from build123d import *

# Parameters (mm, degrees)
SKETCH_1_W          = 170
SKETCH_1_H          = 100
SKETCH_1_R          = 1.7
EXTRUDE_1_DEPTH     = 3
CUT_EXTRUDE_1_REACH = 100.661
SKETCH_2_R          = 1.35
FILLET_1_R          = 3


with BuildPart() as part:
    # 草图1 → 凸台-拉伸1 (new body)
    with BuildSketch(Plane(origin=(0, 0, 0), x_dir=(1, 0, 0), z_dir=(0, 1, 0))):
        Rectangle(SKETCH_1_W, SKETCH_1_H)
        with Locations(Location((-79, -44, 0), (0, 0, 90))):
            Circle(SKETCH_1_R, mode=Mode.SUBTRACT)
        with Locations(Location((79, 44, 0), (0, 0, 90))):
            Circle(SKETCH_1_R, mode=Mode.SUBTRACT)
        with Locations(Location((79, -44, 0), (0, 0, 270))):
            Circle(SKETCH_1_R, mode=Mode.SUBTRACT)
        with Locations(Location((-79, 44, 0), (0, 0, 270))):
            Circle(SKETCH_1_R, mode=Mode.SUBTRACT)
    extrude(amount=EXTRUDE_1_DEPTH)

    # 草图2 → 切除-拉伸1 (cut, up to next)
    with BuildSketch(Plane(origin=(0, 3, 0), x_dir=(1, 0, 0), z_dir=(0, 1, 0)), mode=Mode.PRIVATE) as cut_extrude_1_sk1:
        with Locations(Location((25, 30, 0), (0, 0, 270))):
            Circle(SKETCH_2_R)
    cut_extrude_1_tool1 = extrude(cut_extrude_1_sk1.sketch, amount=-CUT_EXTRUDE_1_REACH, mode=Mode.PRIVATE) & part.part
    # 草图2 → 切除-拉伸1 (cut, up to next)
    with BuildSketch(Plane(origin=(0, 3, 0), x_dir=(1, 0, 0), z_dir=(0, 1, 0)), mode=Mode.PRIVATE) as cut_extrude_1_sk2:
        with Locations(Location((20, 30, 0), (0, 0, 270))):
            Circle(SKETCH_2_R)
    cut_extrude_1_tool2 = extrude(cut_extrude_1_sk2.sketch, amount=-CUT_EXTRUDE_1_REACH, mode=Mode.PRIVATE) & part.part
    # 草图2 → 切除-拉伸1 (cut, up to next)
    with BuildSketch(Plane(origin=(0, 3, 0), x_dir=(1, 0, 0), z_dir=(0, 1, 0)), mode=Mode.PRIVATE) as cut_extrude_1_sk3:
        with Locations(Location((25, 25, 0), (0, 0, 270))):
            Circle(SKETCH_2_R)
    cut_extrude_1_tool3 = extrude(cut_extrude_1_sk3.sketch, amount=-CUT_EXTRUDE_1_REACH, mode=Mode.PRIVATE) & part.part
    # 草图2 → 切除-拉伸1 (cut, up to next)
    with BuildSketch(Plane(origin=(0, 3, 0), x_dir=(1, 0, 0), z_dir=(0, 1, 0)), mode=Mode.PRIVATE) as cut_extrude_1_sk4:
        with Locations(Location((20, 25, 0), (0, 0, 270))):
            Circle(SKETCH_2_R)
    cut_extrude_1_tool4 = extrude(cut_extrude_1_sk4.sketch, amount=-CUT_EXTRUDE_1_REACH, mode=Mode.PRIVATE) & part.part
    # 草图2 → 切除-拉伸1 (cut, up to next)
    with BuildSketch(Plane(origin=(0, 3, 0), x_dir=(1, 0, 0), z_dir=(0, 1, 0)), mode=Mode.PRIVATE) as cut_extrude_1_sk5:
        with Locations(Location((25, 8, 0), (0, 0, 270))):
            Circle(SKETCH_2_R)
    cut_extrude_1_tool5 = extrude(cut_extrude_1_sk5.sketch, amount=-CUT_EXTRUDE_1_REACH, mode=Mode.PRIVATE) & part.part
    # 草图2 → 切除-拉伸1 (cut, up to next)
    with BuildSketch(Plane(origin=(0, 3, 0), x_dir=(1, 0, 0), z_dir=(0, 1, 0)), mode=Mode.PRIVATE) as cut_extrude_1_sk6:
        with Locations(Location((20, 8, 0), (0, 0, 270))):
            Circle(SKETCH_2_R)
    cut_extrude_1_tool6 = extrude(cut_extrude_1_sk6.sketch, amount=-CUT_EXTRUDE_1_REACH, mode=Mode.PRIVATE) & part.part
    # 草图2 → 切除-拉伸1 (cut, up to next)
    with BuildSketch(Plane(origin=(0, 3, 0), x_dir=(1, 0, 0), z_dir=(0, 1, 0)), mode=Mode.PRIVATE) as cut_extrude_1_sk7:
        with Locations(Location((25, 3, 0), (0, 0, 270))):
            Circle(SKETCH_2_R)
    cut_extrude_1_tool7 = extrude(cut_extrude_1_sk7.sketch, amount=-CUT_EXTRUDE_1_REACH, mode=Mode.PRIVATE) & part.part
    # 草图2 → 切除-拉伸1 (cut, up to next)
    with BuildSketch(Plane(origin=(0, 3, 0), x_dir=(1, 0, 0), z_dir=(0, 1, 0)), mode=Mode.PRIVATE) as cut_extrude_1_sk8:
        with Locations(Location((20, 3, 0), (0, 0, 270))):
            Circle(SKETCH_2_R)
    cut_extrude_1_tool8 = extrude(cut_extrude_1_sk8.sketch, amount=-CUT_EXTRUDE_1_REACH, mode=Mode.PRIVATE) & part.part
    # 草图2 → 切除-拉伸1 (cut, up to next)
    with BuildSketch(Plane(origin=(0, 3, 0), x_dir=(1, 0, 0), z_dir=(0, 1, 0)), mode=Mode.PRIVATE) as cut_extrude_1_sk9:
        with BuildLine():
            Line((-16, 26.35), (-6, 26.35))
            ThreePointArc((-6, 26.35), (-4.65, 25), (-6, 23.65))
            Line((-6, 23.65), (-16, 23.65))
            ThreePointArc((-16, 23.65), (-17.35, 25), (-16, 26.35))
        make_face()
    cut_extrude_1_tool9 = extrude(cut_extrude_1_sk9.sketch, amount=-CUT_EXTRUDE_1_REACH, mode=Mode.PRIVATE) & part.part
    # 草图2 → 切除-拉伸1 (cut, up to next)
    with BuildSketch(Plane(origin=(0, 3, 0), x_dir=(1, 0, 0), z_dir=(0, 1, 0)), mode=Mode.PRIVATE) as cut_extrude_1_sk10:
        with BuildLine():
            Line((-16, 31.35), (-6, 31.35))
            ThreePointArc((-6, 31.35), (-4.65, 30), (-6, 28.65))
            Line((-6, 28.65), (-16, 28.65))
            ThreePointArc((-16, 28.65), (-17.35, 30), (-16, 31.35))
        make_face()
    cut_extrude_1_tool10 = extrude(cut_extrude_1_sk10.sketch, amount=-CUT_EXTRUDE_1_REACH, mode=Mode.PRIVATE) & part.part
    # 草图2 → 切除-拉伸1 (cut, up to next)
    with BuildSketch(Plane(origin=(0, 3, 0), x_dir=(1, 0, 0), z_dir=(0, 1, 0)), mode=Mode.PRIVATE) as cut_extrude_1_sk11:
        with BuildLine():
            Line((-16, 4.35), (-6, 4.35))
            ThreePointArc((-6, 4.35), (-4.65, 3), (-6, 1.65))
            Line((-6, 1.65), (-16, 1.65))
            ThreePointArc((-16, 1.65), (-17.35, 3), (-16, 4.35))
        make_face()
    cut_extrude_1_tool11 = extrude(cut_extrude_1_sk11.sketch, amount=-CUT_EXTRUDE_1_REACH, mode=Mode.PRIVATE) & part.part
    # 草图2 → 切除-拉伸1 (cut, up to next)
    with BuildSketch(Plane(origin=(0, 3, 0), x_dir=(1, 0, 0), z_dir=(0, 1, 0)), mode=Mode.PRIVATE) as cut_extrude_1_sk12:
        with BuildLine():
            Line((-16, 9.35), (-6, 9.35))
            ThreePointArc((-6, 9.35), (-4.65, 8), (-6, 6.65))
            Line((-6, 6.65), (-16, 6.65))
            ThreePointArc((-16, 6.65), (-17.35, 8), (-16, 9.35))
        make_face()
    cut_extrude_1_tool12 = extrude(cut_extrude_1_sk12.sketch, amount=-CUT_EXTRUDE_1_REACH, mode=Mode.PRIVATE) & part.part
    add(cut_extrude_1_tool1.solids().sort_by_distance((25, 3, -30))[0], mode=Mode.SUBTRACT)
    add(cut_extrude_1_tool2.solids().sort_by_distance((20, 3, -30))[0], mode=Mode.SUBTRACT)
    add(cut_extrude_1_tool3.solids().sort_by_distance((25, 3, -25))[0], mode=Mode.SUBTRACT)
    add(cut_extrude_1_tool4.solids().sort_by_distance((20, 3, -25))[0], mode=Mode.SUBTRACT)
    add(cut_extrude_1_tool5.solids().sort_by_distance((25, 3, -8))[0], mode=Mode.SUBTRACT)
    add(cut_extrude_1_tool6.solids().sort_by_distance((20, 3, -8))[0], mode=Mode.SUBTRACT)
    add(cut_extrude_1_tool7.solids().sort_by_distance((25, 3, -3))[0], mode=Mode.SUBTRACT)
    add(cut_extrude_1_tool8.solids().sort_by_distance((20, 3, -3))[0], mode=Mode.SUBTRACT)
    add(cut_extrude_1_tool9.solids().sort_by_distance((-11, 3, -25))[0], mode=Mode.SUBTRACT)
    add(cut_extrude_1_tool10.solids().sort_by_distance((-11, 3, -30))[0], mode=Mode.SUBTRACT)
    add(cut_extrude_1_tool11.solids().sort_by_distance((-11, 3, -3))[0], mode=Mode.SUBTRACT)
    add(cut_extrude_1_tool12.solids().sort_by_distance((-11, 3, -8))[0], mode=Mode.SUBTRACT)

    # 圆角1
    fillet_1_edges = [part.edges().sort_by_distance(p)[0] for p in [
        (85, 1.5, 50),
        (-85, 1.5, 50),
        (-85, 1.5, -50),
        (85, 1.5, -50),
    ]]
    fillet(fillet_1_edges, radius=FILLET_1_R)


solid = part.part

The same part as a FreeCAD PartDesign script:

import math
import FreeCAD as App
import Part
import Sketcher


def edges_at(feature, points):
    """Names of the edges that pass closest to the given points."""
    edges = feature.Shape.Edges
    near = lambda p: min(range(len(edges)), key=lambda i: edges[i].distToShape(Part.Vertex(*p))[0])
    return sorted({f"Edge{near(p) + 1}" for p in points})


def add_polygon(sketch, points):
    """Adds a closed chain of lines whose ends are joined by coincident constraints."""
    first, n = sketch.GeometryCount, len(points)
    for a, b in zip(points, points[1:] + points[:1]):
        sketch.addGeometry(Part.LineSegment(App.Vector(*a, 0), App.Vector(*b, 0)), False)
    for i in range(n):
        sketch.addConstraint(Sketcher.Constraint("Coincident", first + i, 2, first + (i + 1) % n, 1))

doc = App.newDocument("Part")
body = doc.addObject("PartDesign::Body", "Body")

# Sketch on XZ plane
sketch1 = doc.addObject("Sketcher::SketchObject", "Sketch")
body.addObject(sketch1)
sketch1.AttachmentSupport = (doc.XZ_Plane, [""])
sketch1.MapMode = "FlatFace"
add_polygon(sketch1, [(-85, -50), (-85, 50), (85, 50), (85, -50)])  # lines 0-3
sketch1.addGeometry(Part.Circle(App.Vector(-79, 44, 0), App.Vector(0, 0, 1), 1.7), False)  # 4
sketch1.addGeometry(Part.Circle(App.Vector(79, 44, 0), App.Vector(0, 0, 1), 1.7), False)  # 5
sketch1.addGeometry(Part.Circle(App.Vector(-79, -44, 0), App.Vector(0, 0, 1), 1.7), False)  # 6
sketch1.addGeometry(Part.Circle(App.Vector(79, -44, 0), App.Vector(0, 0, 1), 1.7), False)  # 7
sketch1.addConstraint(Sketcher.Constraint("Vertical", 0))
sketch1.addConstraint(Sketcher.Constraint("Horizontal", 1))
sketch1.addConstraint(Sketcher.Constraint("Vertical", 2))
sketch1.addConstraint(Sketcher.Constraint("Horizontal", 3))
sketch1.addConstraint(Sketcher.Constraint("Equal", 4, 5))
sketch1.addConstraint(Sketcher.Constraint("Equal", 5, 6))
sketch1.addConstraint(Sketcher.Constraint("Equal", 6, 7))
sketch1.addConstraint(Sketcher.Constraint("Symmetric", 5, 3, 6, 3, -1, 1))
sketch1.addConstraint(Sketcher.Constraint("Symmetric", 4, 3, 7, 3, -1, 1))
sketch1.addConstraint(Sketcher.Constraint("Symmetric", 0, 2, 2, 2, -1, 1))
sketch1.addConstraint(Sketcher.Constraint("Symmetric", 4, 3, 5, 3, -2))
sketch1.addConstraint(Sketcher.Constraint("Diameter", 4, 3.4))
sketch1.addConstraint(Sketcher.Constraint("DistanceX", 1, 1, 1, 2, 170.0))
sketch1.addConstraint(Sketcher.Constraint("DistanceY", 0, 1, 0, 2, 100.0))
sketch1.addConstraint(Sketcher.Constraint("DistanceX", 4, 3, -1, 1, 79.0))
sketch1.addConstraint(Sketcher.Constraint("DistanceY", -1, 1, 4, 3, 44.0))
pad1 = doc.addObject("PartDesign::Pad", "Pad")
body.addObject(pad1)
pad1.Profile = sketch1
pad1.Length = 3
pad1.Reversed = True

# Sketch on XZ plane
sketch2 = doc.addObject("Sketcher::SketchObject", "Sketch001")
body.addObject(sketch2)
sketch2.AttachmentSupport = (doc.XZ_Plane, [""])
sketch2.MapMode = "FlatFace"
sketch2.AttachmentOffset = App.Placement(App.Vector(0, 0, -3), App.Rotation())
sketch2.addGeometry(Part.Circle(App.Vector(25, -30, 0), App.Vector(0, 0, 1), 1.35), False)
sketch2.addConstraint(Sketcher.Constraint("Diameter", 0, 2.7))
sketch2.addConstraint(Sketcher.Constraint("DistanceX", -1, 1, 0, 3, 25.0))
sketch2.addConstraint(Sketcher.Constraint("DistanceY", 0, 3, -1, 1, 30.0))
pocket1 = doc.addObject("PartDesign::Pocket", "Pocket")
body.addObject(pocket1)
pocket1.Profile = sketch2
pocket1.Type = "UpToFirst"
pocket1.Reversed = True

# Sketch on XZ plane
sketch3 = doc.addObject("Sketcher::SketchObject", "Sketch002")
body.addObject(sketch3)
sketch3.AttachmentSupport = (doc.XZ_Plane, [""])
sketch3.MapMode = "FlatFace"
sketch3.AttachmentOffset = App.Placement(App.Vector(0, 0, -3), App.Rotation())
sketch3.addGeometry(Part.Circle(App.Vector(20, -30, 0), App.Vector(0, 0, 1), 1.35), False)
sketch3.addConstraint(Sketcher.Constraint("Diameter", 0, 2.7))
sketch3.addConstraint(Sketcher.Constraint("DistanceX", -1, 1, 0, 3, 20.0))
sketch3.addConstraint(Sketcher.Constraint("DistanceY", 0, 3, -1, 1, 30.0))
pocket2 = doc.addObject("PartDesign::Pocket", "Pocket001")
body.addObject(pocket2)
pocket2.Profile = sketch3
pocket2.Type = "UpToFirst"
pocket2.Reversed = True

# Sketch on XZ plane
sketch4 = doc.addObject("Sketcher::SketchObject", "Sketch003")
body.addObject(sketch4)
sketch4.AttachmentSupport = (doc.XZ_Plane, [""])
sketch4.MapMode = "FlatFace"
sketch4.AttachmentOffset = App.Placement(App.Vector(0, 0, -3), App.Rotation())
sketch4.addGeometry(Part.Circle(App.Vector(25, -25, 0), App.Vector(0, 0, 1), 1.35), False)
sketch4.addConstraint(Sketcher.Constraint("Diameter", 0, 2.7))
sketch4.addConstraint(Sketcher.Constraint("DistanceX", -1, 1, 0, 3, 25.0))
sketch4.addConstraint(Sketcher.Constraint("DistanceY", 0, 3, -1, 1, 25.0))
pocket3 = doc.addObject("PartDesign::Pocket", "Pocket002")
body.addObject(pocket3)
pocket3.Profile = sketch4
pocket3.Type = "UpToFirst"
pocket3.Reversed = True

# Sketch on XZ plane
sketch5 = doc.addObject("Sketcher::SketchObject", "Sketch004")
body.addObject(sketch5)
sketch5.AttachmentSupport = (doc.XZ_Plane, [""])
sketch5.MapMode = "FlatFace"
sketch5.AttachmentOffset = App.Placement(App.Vector(0, 0, -3), App.Rotation())
sketch5.addGeometry(Part.Circle(App.Vector(20, -25, 0), App.Vector(0, 0, 1), 1.35), False)
sketch5.addConstraint(Sketcher.Constraint("Diameter", 0, 2.7))
sketch5.addConstraint(Sketcher.Constraint("DistanceX", -1, 1, 0, 3, 20.0))
sketch5.addConstraint(Sketcher.Constraint("DistanceY", 0, 3, -1, 1, 25.0))
pocket4 = doc.addObject("PartDesign::Pocket", "Pocket003")
body.addObject(pocket4)
pocket4.Profile = sketch5
pocket4.Type = "UpToFirst"
pocket4.Reversed = True

# Sketch on XZ plane
sketch6 = doc.addObject("Sketcher::SketchObject", "Sketch005")
body.addObject(sketch6)
sketch6.AttachmentSupport = (doc.XZ_Plane, [""])
sketch6.MapMode = "FlatFace"
sketch6.AttachmentOffset = App.Placement(App.Vector(0, 0, -3), App.Rotation())
sketch6.addGeometry(Part.Circle(App.Vector(25, -8, 0), App.Vector(0, 0, 1), 1.35), False)
sketch6.addConstraint(Sketcher.Constraint("Diameter", 0, 2.7))
sketch6.addConstraint(Sketcher.Constraint("DistanceX", -1, 1, 0, 3, 25.0))
sketch6.addConstraint(Sketcher.Constraint("DistanceY", 0, 3, -1, 1, 8.0))
pocket5 = doc.addObject("PartDesign::Pocket", "Pocket004")
body.addObject(pocket5)
pocket5.Profile = sketch6
pocket5.Type = "UpToFirst"
pocket5.Reversed = True

# Sketch on XZ plane
sketch7 = doc.addObject("Sketcher::SketchObject", "Sketch006")
body.addObject(sketch7)
sketch7.AttachmentSupport = (doc.XZ_Plane, [""])
sketch7.MapMode = "FlatFace"
sketch7.AttachmentOffset = App.Placement(App.Vector(0, 0, -3), App.Rotation())
sketch7.addGeometry(Part.Circle(App.Vector(20, -8, 0), App.Vector(0, 0, 1), 1.35), False)
sketch7.addConstraint(Sketcher.Constraint("Diameter", 0, 2.7))
sketch7.addConstraint(Sketcher.Constraint("DistanceX", -1, 1, 0, 3, 20.0))
sketch7.addConstraint(Sketcher.Constraint("DistanceY", 0, 3, -1, 1, 8.0))
pocket6 = doc.addObject("PartDesign::Pocket", "Pocket005")
body.addObject(pocket6)
pocket6.Profile = sketch7
pocket6.Type = "UpToFirst"
pocket6.Reversed = True

# Sketch on XZ plane
sketch8 = doc.addObject("Sketcher::SketchObject", "Sketch007")
body.addObject(sketch8)
sketch8.AttachmentSupport = (doc.XZ_Plane, [""])
sketch8.MapMode = "FlatFace"
sketch8.AttachmentOffset = App.Placement(App.Vector(0, 0, -3), App.Rotation())
sketch8.addGeometry(Part.Circle(App.Vector(25, -3, 0), App.Vector(0, 0, 1), 1.35), False)
sketch8.addConstraint(Sketcher.Constraint("Diameter", 0, 2.7))
sketch8.addConstraint(Sketcher.Constraint("DistanceX", -1, 1, 0, 3, 25.0))
sketch8.addConstraint(Sketcher.Constraint("DistanceY", 0, 3, -1, 1, 3.0))
pocket7 = doc.addObject("PartDesign::Pocket", "Pocket006")
body.addObject(pocket7)
pocket7.Profile = sketch8
pocket7.Type = "UpToFirst"
pocket7.Reversed = True

# Sketch on XZ plane
sketch9 = doc.addObject("Sketcher::SketchObject", "Sketch008")
body.addObject(sketch9)
sketch9.AttachmentSupport = (doc.XZ_Plane, [""])
sketch9.MapMode = "FlatFace"
sketch9.AttachmentOffset = App.Placement(App.Vector(0, 0, -3), App.Rotation())
sketch9.addGeometry(Part.Circle(App.Vector(20, -3, 0), App.Vector(0, 0, 1), 1.35), False)
sketch9.addConstraint(Sketcher.Constraint("Diameter", 0, 2.7))
sketch9.addConstraint(Sketcher.Constraint("DistanceX", -1, 1, 0, 3, 20.0))
sketch9.addConstraint(Sketcher.Constraint("DistanceY", 0, 3, -1, 1, 3.0))
pocket8 = doc.addObject("PartDesign::Pocket", "Pocket007")
body.addObject(pocket8)
pocket8.Profile = sketch9
pocket8.Type = "UpToFirst"
pocket8.Reversed = True

# Sketch on XZ plane
sketch10 = doc.addObject("Sketcher::SketchObject", "Sketch009")
body.addObject(sketch10)
sketch10.AttachmentSupport = (doc.XZ_Plane, [""])
sketch10.MapMode = "FlatFace"
sketch10.AttachmentOffset = App.Placement(App.Vector(0, 0, -3), App.Rotation())
sketch10.addGeometry(Part.LineSegment(App.Vector(-6, -26.35, 0), App.Vector(-16, -26.35, 0)), False)
sketch10.addGeometry(Part.ArcOfCircle(Part.Circle(App.Vector(-16, -25, 0), App.Vector(0, 0, 1), 1.35), math.radians(90), math.radians(270)), False)
sketch10.addGeometry(Part.LineSegment(App.Vector(-16, -23.65, 0), App.Vector(-6, -23.65, 0)), False)
sketch10.addGeometry(Part.ArcOfCircle(Part.Circle(App.Vector(-6, -25, 0), App.Vector(0, 0, 1), 1.35), math.radians(-90), math.radians(90)), False)
sketch10.addConstraint(Sketcher.Constraint("Tangent", 0, 2, 1, 2))
sketch10.addConstraint(Sketcher.Constraint("Tangent", 1, 1, 2, 1))
sketch10.addConstraint(Sketcher.Constraint("Tangent", 2, 2, 3, 2))
sketch10.addConstraint(Sketcher.Constraint("Tangent", 3, 1, 0, 1))
sketch10.addConstraint(Sketcher.Constraint("Horizontal", 0))
sketch10.addConstraint(Sketcher.Constraint("Horizontal", 2))
sketch10.addConstraint(Sketcher.Constraint("DistanceX", 0, 2, 0, 1, 10.0))
sketch10.addConstraint(Sketcher.Constraint("Radius", 1, 1.35))
sketch10.addConstraint(Sketcher.Constraint("DistanceX", 1, 3, -1, 1, 16.0))
sketch10.addConstraint(Sketcher.Constraint("DistanceY", 1, 3, -1, 1, 25.0))
pocket9 = doc.addObject("PartDesign::Pocket", "Pocket008")
body.addObject(pocket9)
pocket9.Profile = sketch10
pocket9.Type = "UpToFirst"
pocket9.Reversed = True

# Sketch on XZ plane
sketch11 = doc.addObject("Sketcher::SketchObject", "Sketch010")
body.addObject(sketch11)
sketch11.AttachmentSupport = (doc.XZ_Plane, [""])
sketch11.MapMode = "FlatFace"
sketch11.AttachmentOffset = App.Placement(App.Vector(0, 0, -3), App.Rotation())
sketch11.addGeometry(Part.LineSegment(App.Vector(-6, -31.35, 0), App.Vector(-16, -31.35, 0)), False)
sketch11.addGeometry(Part.ArcOfCircle(Part.Circle(App.Vector(-16, -30, 0), App.Vector(0, 0, 1), 1.35), math.radians(90), math.radians(270)), False)
sketch11.addGeometry(Part.LineSegment(App.Vector(-16, -28.65, 0), App.Vector(-6, -28.65, 0)), False)
sketch11.addGeometry(Part.ArcOfCircle(Part.Circle(App.Vector(-6, -30, 0), App.Vector(0, 0, 1), 1.35), math.radians(-90), math.radians(90)), False)
sketch11.addConstraint(Sketcher.Constraint("Tangent", 0, 2, 1, 2))
sketch11.addConstraint(Sketcher.Constraint("Tangent", 1, 1, 2, 1))
sketch11.addConstraint(Sketcher.Constraint("Tangent", 2, 2, 3, 2))
sketch11.addConstraint(Sketcher.Constraint("Tangent", 3, 1, 0, 1))
sketch11.addConstraint(Sketcher.Constraint("Horizontal", 0))
sketch11.addConstraint(Sketcher.Constraint("Horizontal", 2))
sketch11.addConstraint(Sketcher.Constraint("DistanceX", 0, 2, 0, 1, 10.0))
sketch11.addConstraint(Sketcher.Constraint("Radius", 1, 1.35))
sketch11.addConstraint(Sketcher.Constraint("DistanceX", 1, 3, -1, 1, 16.0))
sketch11.addConstraint(Sketcher.Constraint("DistanceY", 1, 3, -1, 1, 30.0))
pocket10 = doc.addObject("PartDesign::Pocket", "Pocket009")
body.addObject(pocket10)
pocket10.Profile = sketch11
pocket10.Type = "UpToFirst"
pocket10.Reversed = True

# Sketch on XZ plane
sketch12 = doc.addObject("Sketcher::SketchObject", "Sketch011")
body.addObject(sketch12)
sketch12.AttachmentSupport = (doc.XZ_Plane, [""])
sketch12.MapMode = "FlatFace"
sketch12.AttachmentOffset = App.Placement(App.Vector(0, 0, -3), App.Rotation())
sketch12.addGeometry(Part.LineSegment(App.Vector(-6, -4.35, 0), App.Vector(-16, -4.35, 0)), False)
sketch12.addGeometry(Part.ArcOfCircle(Part.Circle(App.Vector(-16, -3, 0), App.Vector(0, 0, 1), 1.35), math.radians(90), math.radians(270)), False)
sketch12.addGeometry(Part.LineSegment(App.Vector(-16, -1.65, 0), App.Vector(-6, -1.65, 0)), False)
sketch12.addGeometry(Part.ArcOfCircle(Part.Circle(App.Vector(-6, -3, 0), App.Vector(0, 0, 1), 1.35), math.radians(-90), math.radians(90)), False)
sketch12.addConstraint(Sketcher.Constraint("Tangent", 0, 2, 1, 2))
sketch12.addConstraint(Sketcher.Constraint("Tangent", 1, 1, 2, 1))
sketch12.addConstraint(Sketcher.Constraint("Tangent", 2, 2, 3, 2))
sketch12.addConstraint(Sketcher.Constraint("Tangent", 3, 1, 0, 1))
sketch12.addConstraint(Sketcher.Constraint("Horizontal", 0))
sketch12.addConstraint(Sketcher.Constraint("Horizontal", 2))
sketch12.addConstraint(Sketcher.Constraint("DistanceX", 0, 2, 0, 1, 10.0))
sketch12.addConstraint(Sketcher.Constraint("Radius", 1, 1.35))
sketch12.addConstraint(Sketcher.Constraint("DistanceX", 1, 3, -1, 1, 16.0))
sketch12.addConstraint(Sketcher.Constraint("DistanceY", 1, 3, -1, 1, 3.0))
pocket11 = doc.addObject("PartDesign::Pocket", "Pocket010")
body.addObject(pocket11)
pocket11.Profile = sketch12
pocket11.Type = "UpToFirst"
pocket11.Reversed = True

# Sketch on XZ plane
sketch13 = doc.addObject("Sketcher::SketchObject", "Sketch012")
body.addObject(sketch13)
sketch13.AttachmentSupport = (doc.XZ_Plane, [""])
sketch13.MapMode = "FlatFace"
sketch13.AttachmentOffset = App.Placement(App.Vector(0, 0, -3), App.Rotation())
sketch13.addGeometry(Part.LineSegment(App.Vector(-6, -9.35, 0), App.Vector(-16, -9.35, 0)), False)
sketch13.addGeometry(Part.ArcOfCircle(Part.Circle(App.Vector(-16, -8, 0), App.Vector(0, 0, 1), 1.35), math.radians(90), math.radians(270)), False)
sketch13.addGeometry(Part.LineSegment(App.Vector(-16, -6.65, 0), App.Vector(-6, -6.65, 0)), False)
sketch13.addGeometry(Part.ArcOfCircle(Part.Circle(App.Vector(-6, -8, 0), App.Vector(0, 0, 1), 1.35), math.radians(-90), math.radians(90)), False)
sketch13.addConstraint(Sketcher.Constraint("Tangent", 0, 2, 1, 2))
sketch13.addConstraint(Sketcher.Constraint("Tangent", 1, 1, 2, 1))
sketch13.addConstraint(Sketcher.Constraint("Tangent", 2, 2, 3, 2))
sketch13.addConstraint(Sketcher.Constraint("Tangent", 3, 1, 0, 1))
sketch13.addConstraint(Sketcher.Constraint("Horizontal", 0))
sketch13.addConstraint(Sketcher.Constraint("Horizontal", 2))
sketch13.addConstraint(Sketcher.Constraint("DistanceX", 0, 2, 0, 1, 10.0))
sketch13.addConstraint(Sketcher.Constraint("Radius", 1, 1.35))
sketch13.addConstraint(Sketcher.Constraint("DistanceX", 1, 3, -1, 1, 16.0))
sketch13.addConstraint(Sketcher.Constraint("DistanceY", 1, 3, -1, 1, 8.0))
pocket12 = doc.addObject("PartDesign::Pocket", "Pocket011")
body.addObject(pocket12)
pocket12.Profile = sketch13
pocket12.Type = "UpToFirst"
pocket12.Reversed = True
doc.recompute()

fillet = doc.addObject("PartDesign::Fillet", "Fillet")
body.addObject(fillet)
fillet.Base = (pocket12, edges_at(pocket12, [
    (85, 1.5, 50),
    (-85, 1.5, 50),
    (-85, 1.5, -50),
    (85, 1.5, -50),
]))
fillet.Radius = 3

doc.recompute()
